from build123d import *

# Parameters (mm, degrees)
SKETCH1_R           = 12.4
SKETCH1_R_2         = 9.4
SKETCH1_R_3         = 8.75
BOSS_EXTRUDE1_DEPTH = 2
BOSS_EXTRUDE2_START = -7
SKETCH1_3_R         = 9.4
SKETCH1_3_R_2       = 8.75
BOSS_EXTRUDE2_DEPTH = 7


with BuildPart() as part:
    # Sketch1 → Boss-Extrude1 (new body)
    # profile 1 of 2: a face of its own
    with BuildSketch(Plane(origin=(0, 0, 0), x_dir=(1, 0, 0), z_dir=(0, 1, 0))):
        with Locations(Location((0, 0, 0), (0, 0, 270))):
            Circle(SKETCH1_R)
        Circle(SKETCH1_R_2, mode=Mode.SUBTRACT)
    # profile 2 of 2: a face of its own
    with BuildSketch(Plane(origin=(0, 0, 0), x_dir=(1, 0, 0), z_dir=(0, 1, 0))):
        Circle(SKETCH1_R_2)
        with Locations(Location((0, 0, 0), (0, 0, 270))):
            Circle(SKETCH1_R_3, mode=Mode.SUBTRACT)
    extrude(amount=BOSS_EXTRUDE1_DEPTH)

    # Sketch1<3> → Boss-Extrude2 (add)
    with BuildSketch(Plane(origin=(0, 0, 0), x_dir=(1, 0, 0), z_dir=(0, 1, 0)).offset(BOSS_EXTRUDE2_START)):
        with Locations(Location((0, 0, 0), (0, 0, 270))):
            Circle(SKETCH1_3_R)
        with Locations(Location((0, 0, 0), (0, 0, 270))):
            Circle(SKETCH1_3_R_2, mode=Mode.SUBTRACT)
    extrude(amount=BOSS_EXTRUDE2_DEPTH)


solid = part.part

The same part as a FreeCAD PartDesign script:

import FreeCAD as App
import Part
import Sketcher
from FreeCAD import Vector

doc = App.newDocument("Part")
body = doc.addObject("PartDesign::Body", "Body")

# Sketch on XZ plane
sketch1 = doc.addObject("Sketcher::SketchObject", "Sketch")
body.addObject(sketch1)
sketch1.AttachmentSupport = (doc.XZ_Plane, [""])
sketch1.MapMode = "FlatFace"
sketch1.addGeometry([
    Part.Circle(Vector(0, 0, 0), Vector(0, 0, 1), 12),
    Part.Circle(Vector(0, 0, 0), Vector(0, 0, 1), 9),
], False)
sketch1.addConstraint([
    Sketcher.Constraint("Coincident", 0, 3, -1, 1),
    Sketcher.Constraint("Coincident", 1, 3, -1, 1),
    Sketcher.Constraint("Diameter", 0, 24.8),
    Sketcher.Constraint("Diameter", 1, 17.5),
])
pad1 = doc.addObject("PartDesign::Pad", "Pad")
body.addObject(pad1)
pad1.Profile = sketch1
pad1.Length = 2
pad1.Reversed = True

# Sketch on XZ plane
sketch2 = doc.addObject("Sketcher::SketchObject", "Sketch001")
body.addObject(sketch2)
sketch2.AttachmentSupport = (doc.XZ_Plane, [""])
sketch2.MapMode = "FlatFace"
sketch2.AttachmentOffset = App.Placement(Vector(0, 0, 7), App.Rotation())
sketch2.addGeometry([
    Part.Circle(Vector(0, 0, 0), Vector(0, 0, 1), 9),
    Part.Circle(Vector(0, 0, 0), Vector(0, 0, 1), 9),
], False)
sketch2.addConstraint([
    Sketcher.Constraint("Coincident", 0, 3, -1, 1),
    Sketcher.Constraint("Coincident", 1, 3, -1, 1),
    Sketcher.Constraint("Diameter", 0, 18.8),
    Sketcher.Constraint("Diameter", 1, 17.5),
])
pad2 = doc.addObject("PartDesign::Pad", "Pad001")
body.addObject(pad2)
pad2.Profile = sketch2
pad2.Length = 7
pad2.Reversed = True

doc.recompute()
